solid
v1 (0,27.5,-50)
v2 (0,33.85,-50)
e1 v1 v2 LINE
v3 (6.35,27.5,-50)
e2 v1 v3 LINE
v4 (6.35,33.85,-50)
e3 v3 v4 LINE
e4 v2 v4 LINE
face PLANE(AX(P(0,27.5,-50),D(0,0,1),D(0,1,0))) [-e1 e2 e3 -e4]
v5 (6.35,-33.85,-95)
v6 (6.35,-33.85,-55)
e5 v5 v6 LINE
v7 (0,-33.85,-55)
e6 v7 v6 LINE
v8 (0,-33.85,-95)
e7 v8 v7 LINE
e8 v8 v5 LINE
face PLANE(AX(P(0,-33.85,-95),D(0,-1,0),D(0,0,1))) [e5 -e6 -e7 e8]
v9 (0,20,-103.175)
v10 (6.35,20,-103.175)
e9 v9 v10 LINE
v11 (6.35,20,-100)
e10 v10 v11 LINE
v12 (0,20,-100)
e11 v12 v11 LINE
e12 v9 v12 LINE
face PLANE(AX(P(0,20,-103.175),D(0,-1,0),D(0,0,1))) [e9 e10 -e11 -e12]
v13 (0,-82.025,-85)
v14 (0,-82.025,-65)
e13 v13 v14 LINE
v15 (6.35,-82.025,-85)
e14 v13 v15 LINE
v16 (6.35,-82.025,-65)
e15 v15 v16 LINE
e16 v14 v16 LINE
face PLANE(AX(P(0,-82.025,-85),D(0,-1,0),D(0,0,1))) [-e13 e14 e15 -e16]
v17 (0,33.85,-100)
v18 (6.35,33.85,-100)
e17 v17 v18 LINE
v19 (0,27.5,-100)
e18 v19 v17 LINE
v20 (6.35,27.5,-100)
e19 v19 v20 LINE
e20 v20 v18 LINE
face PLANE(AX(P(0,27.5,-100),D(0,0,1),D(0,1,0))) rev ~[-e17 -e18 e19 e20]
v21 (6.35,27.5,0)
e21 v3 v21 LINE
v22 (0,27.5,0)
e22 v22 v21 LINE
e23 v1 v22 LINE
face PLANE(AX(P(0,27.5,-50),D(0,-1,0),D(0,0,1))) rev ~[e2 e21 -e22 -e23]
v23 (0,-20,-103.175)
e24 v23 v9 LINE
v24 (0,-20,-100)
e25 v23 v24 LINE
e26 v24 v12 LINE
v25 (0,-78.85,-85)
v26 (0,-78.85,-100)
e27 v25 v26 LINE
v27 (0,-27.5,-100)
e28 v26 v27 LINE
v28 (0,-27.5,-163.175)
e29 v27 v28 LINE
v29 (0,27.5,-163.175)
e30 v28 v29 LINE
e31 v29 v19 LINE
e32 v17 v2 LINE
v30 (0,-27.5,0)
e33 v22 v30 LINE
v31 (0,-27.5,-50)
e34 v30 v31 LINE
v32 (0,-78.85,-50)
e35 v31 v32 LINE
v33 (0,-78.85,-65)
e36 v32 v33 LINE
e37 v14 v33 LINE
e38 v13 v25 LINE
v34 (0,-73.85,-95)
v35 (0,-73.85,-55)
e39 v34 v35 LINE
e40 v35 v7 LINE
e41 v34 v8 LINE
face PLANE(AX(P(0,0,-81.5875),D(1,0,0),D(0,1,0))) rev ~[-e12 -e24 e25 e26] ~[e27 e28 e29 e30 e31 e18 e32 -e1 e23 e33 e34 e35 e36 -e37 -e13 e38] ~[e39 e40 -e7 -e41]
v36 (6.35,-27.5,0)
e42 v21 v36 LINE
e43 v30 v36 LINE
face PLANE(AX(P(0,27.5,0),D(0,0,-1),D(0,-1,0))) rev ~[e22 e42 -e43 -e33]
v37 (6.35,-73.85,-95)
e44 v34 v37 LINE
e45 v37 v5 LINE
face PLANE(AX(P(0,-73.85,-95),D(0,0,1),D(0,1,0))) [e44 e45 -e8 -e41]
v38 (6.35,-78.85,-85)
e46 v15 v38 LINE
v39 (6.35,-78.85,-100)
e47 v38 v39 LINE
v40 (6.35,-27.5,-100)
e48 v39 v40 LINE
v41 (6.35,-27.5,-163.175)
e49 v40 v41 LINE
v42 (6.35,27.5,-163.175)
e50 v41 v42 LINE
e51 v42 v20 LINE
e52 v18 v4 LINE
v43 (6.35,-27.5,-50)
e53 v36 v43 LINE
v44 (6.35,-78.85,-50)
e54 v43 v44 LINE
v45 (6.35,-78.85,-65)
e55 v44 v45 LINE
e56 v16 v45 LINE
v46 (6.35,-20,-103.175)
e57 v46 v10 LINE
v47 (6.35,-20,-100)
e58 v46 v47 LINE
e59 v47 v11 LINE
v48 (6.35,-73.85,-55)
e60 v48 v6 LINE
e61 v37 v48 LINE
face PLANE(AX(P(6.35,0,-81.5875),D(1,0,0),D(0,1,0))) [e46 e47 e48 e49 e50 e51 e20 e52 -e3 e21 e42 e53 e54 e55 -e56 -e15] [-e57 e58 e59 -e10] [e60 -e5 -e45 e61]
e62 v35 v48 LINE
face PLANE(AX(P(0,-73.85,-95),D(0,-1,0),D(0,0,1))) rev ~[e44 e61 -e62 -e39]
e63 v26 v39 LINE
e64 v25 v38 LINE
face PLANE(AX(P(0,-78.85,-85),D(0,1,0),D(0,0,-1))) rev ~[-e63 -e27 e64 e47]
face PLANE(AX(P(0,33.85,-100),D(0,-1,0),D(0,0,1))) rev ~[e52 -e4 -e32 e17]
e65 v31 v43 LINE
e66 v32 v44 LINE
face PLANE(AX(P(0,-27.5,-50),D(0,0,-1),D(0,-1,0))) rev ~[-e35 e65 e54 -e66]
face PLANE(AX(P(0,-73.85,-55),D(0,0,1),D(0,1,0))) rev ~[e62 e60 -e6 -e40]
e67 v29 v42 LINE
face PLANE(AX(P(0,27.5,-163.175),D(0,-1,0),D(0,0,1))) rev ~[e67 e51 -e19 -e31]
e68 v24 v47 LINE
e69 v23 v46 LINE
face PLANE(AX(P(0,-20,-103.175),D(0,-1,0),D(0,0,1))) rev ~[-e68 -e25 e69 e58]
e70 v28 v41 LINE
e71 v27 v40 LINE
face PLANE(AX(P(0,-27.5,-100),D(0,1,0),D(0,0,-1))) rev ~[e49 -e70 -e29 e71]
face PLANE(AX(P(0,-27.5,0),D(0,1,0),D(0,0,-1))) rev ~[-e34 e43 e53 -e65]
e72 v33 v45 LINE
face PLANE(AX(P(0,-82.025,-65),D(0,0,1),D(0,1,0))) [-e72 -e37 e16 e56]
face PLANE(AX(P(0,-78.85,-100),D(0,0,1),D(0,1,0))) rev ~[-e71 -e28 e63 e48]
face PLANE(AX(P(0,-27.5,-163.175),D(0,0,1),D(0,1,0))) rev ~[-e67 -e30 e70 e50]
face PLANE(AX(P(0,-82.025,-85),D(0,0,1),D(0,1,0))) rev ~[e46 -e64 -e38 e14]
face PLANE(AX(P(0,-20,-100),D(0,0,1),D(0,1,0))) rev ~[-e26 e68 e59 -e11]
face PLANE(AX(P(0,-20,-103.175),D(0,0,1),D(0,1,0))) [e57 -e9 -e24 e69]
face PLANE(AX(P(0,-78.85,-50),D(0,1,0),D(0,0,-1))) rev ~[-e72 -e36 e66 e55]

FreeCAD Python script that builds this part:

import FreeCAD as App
import Part
import Sketcher


def add_polygon(sketch, points):
    """Adds a closed chain of lines whose ends are joined by coincident constraints."""
    first, n = sketch.GeometryCount, len(points)
    for a, b in zip(points, points[1:] + points[:1]):
        sketch.addGeometry(Part.LineSegment(App.Vector(*a, 0), App.Vector(*b, 0)), False)
    for i in range(n):
        sketch.addConstraint(Sketcher.Constraint("Coincident", first + i, 2, first + (i + 1) % n, 1))

doc = App.newDocument("Part")
body = doc.addObject("PartDesign::Body", "Body")

# Sketch on YZ plane
sketch1 = doc.addObject("Sketcher::SketchObject", "Sketch")
body.addObject(sketch1)
sketch1.AttachmentSupport = (doc.YZ_Plane, [""])
sketch1.MapMode = "FlatFace"
add_polygon(sketch1, [(27.5, 0), (-27.5, 0), (-27.5, -50), (-78.8, -50), (-78.8, -65), (-82, -65), (-82, -85), (-78.8, -85), (-78.8, -100), (-27.5, -100), (-27.5, -163.2), (27.5, -163.2), (27.5, -100), (33.9, -100), (33.9, -50), (27.5, -50)])  # lines 0-15
add_polygon(sketch1, [(20, -103.2), (-20, -103.2), (-20, -100), (20, -100)])  # lines 16-19
add_polygon(sketch1, [(-33.9, -95), (-73.8, -95), (-73.8, -55), (-33.9, -55)])  # lines 20-23
sketch1.addConstraint([
    Sketcher.Constraint("Horizontal", 0),
    Sketcher.Constraint("Vertical", 1),
    Sketcher.Constraint("Horizontal", 2),
    Sketcher.Constraint("Vertical", 3),
    Sketcher.Constraint("Horizontal", 4),
    Sketcher.Constraint("Vertical", 5),
    Sketcher.Constraint("Horizontal", 6),
    Sketcher.Constraint("Vertical", 7),
    Sketcher.Constraint("Horizontal", 8),
    Sketcher.Constraint("Vertical", 9),
    Sketcher.Constraint("Horizontal", 10),
    Sketcher.Constraint("Vertical", 11),
    Sketcher.Constraint("Horizontal", 12),
    Sketcher.Constraint("Vertical", 13),
    Sketcher.Constraint("Horizontal", 14),
    Sketcher.Constraint("Vertical", 15),
    Sketcher.Constraint("Horizontal", 16),
    Sketcher.Constraint("Vertical", 17),
    Sketcher.Constraint("Horizontal", 18),
    Sketcher.Constraint("Vertical", 19),
    Sketcher.Constraint("Horizontal", 20),
    Sketcher.Constraint("Vertical", 21),
    Sketcher.Constraint("Horizontal", 22),
    Sketcher.Constraint("Vertical", 23),
    Sketcher.Constraint("Symmetric", 0, 2, 15, 2, -1, 1),
    Sketcher.Constraint("Symmetric", 8, 2, 11, 2, -2),
    Sketcher.Constraint("Horizontal", 2, 2, 13, 2),
    Sketcher.Constraint("Horizontal", 12, 2, 17, 2),
    Sketcher.Constraint("Vertical", 3, 2, 6, 2),
    Sketcher.Constraint("Vertical", 1, 2, 8, 2),
    Sketcher.Constraint("Equal", 18, 20),
    Sketcher.Constraint("Equal", 3, 7),
    Sketcher.Constraint("Equal", 1, 13),
    Sketcher.Constraint("Equal", 6, 17),
    Sketcher.Constraint("Equal", 22, 21),
    Sketcher.Constraint("DistanceX", 0, 2, 0, 1, 55.0),
    Sketcher.Constraint("DistanceX", 16, 2, 16, 1, 40.0),
    Sketcher.Constraint("DistanceY", 1, 2, 1, 1, 50.0),
    Sketcher.Constraint("DistanceY", 3, 2, 3, 1, 15.0),
    Sketcher.Constraint("DistanceX", 16, 2, -1, 1, 20.0),
    Sketcher.Constraint("DistanceY", 20, 2, -1, 1, 95.0),
    Sketcher.Constraint("DistanceX", 7, 2, 20, 2, 5.0),
    Sketcher.Constraint("DistanceX", 2, 2, 2, 1, 51.35),
    Sketcher.Constraint("DistanceX", 12, 1, 12, 2, 6.35),
    Sketcher.Constraint("DistanceX", 4, 2, 4, 1, 3.175),
    Sketcher.Constraint("DistanceY", 9, 2, 9, 1, 63.175),
])
pad1 = doc.addObject("PartDesign::Pad", "Pad")
body.addObject(pad1)
pad1.Profile = sketch1
pad1.Length = 6.35

doc.recompute()
